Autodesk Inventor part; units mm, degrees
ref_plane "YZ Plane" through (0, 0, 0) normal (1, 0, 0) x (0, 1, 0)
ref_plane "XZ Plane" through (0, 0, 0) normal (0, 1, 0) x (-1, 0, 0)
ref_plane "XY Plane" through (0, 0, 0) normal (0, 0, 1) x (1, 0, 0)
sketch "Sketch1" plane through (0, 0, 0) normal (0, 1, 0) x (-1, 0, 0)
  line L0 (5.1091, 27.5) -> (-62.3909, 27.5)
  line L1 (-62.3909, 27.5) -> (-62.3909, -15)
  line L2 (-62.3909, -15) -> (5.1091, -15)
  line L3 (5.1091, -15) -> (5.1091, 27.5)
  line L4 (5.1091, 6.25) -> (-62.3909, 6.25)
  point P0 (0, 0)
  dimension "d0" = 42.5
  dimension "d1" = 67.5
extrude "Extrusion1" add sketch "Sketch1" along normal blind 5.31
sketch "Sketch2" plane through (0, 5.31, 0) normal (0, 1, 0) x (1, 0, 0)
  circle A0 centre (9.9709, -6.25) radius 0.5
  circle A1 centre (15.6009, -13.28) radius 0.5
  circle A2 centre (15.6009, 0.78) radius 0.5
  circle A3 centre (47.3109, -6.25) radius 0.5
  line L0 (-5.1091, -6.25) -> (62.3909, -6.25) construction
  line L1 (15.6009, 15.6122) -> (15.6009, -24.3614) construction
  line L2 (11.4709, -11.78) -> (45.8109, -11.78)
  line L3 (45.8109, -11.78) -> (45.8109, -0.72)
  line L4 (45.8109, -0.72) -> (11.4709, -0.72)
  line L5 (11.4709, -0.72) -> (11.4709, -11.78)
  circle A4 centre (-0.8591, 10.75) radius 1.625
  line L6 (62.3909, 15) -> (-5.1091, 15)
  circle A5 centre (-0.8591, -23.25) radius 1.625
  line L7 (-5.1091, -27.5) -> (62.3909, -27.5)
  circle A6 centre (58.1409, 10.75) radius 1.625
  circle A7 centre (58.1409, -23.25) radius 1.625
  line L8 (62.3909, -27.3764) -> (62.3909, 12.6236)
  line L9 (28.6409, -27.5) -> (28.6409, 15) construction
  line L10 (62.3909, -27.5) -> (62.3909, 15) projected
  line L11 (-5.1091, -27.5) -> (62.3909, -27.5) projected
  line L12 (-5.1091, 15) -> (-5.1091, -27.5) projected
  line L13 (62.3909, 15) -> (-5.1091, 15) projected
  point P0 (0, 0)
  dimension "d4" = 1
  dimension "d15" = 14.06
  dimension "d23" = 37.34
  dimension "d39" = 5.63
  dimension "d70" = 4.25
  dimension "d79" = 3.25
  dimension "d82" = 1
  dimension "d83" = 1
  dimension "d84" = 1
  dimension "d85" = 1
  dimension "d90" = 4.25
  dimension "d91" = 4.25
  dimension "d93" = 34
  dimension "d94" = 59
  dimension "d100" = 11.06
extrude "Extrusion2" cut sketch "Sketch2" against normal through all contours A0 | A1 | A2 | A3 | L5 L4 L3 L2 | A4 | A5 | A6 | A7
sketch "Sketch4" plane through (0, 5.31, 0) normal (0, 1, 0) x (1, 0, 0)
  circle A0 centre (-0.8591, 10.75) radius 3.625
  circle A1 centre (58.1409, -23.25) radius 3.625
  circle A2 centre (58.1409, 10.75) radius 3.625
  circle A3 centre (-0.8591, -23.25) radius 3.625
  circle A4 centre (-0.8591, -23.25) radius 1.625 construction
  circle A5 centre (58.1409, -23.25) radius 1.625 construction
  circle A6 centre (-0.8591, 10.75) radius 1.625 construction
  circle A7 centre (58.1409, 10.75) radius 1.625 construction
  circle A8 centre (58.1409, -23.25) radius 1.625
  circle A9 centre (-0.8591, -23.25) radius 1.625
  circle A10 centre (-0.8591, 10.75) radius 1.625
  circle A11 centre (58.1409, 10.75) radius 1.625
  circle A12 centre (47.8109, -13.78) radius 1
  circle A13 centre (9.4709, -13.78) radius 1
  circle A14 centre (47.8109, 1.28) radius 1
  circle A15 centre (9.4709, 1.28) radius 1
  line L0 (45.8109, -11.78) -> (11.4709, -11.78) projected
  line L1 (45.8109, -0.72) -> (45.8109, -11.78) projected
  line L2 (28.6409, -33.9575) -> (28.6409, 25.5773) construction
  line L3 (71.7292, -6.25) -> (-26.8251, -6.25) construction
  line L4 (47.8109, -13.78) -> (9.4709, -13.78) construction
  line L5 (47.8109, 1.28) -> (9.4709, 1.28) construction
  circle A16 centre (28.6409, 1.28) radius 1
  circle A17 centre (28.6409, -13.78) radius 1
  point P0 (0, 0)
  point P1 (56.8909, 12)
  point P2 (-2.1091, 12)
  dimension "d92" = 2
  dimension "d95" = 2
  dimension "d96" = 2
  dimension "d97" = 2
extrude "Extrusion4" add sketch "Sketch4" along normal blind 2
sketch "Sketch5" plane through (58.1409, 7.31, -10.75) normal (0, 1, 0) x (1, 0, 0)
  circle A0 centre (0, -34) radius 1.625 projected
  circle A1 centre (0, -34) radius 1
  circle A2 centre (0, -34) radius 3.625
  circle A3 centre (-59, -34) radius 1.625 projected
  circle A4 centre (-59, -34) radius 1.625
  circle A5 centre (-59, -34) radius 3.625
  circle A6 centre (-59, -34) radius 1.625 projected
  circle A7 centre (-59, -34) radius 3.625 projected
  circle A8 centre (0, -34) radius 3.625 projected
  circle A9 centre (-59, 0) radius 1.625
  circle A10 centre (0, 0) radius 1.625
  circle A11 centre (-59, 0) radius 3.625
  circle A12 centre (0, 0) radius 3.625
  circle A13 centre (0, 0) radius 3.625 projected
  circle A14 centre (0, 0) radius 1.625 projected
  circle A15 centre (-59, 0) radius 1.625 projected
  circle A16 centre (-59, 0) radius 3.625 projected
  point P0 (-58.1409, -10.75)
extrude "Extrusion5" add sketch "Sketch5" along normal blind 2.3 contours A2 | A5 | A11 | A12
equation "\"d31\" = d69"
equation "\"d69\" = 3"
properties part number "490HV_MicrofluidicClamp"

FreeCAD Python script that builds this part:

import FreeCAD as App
import Part
import Sketcher

V = App.Vector


def add_polygon(sketch, points):
    """Adds a closed chain of lines whose ends are joined by coincident constraints."""
    first, n = sketch.GeometryCount, len(points)
    for a, b in zip(points, points[1:] + points[:1]):
        sketch.addGeometry(Part.LineSegment(App.Vector(*a, 0), App.Vector(*b, 0)), False)
    for i in range(n):
        sketch.addConstraint(Sketcher.Constraint("Coincident", first + i, 2, first + (i + 1) % n, 1))

doc = App.newDocument("Part")
params = doc.addObject("Spreadsheet::Sheet", "Params")
for row, (alias, value) in enumerate([
    ("sketch1_width", "67.5 mm"),
    ("sketch1_height", "42.5 mm"),
    ("pad1_length", "5.31 mm"),
    ("sketch2_diameter", "1 mm"),
    ("sketch2_diameter2", "3.25 mm"),
    ("sketch2_height", "11.06 mm"),
    ("sketch2_width", "34.34 mm"),
    ("sketch3_diameter", "2 mm"),
    ("sketch3_diameter2", "7.25 mm"),
    ("sketch3_diameter3", "3.25 mm"),
    ("pad2_length", "2 mm"),
    ("sketch4_diameter", "7.25 mm"),
    ("sketch4_diameter2", "3.25 mm"),
    ("pad3_length", "2.3 mm"),
], start=1):
    params.set(f"A{row}", alias)
    params.set(f"B{row}", "=" + value)
    params.setAlias(f"B{row}", alias)

body = doc.addObject("PartDesign::Body", "Body")

# Sketch on XZ plane
sketch1 = body.newObject("Sketcher::SketchObject", "Sketch")
sketch1.AttachmentSupport = (doc.getObject("XZ_Plane"), [""])
sketch1.MapMode = "FlatFace"
add_polygon(sketch1, [(-5, 28), (62, 28), (62, -15), (-5, -15)])  # lines 0-3
sketch1.addConstraint(Sketcher.Constraint("Horizontal", 0))
sketch1.addConstraint(Sketcher.Constraint("Vertical", 1))
sketch1.addConstraint(Sketcher.Constraint("Horizontal", 2))
sketch1.addConstraint(Sketcher.Constraint("Vertical", 3))
sketch1.addConstraint(Sketcher.Constraint("DistanceX", 0, 1, 0, 2, 67.5))
sketch1.addConstraint(Sketcher.Constraint("DistanceY", 1, 2, 1, 1, 42.5))
sketch1.addConstraint(Sketcher.Constraint("DistanceY", 1, 2, -1, 1, 15.0))
sketch1.addConstraint(Sketcher.Constraint("DistanceX", -1, 1, 0, 2, 62.391))
sketch1.setExpression("Constraints[8]", "Params.sketch1_width")
sketch1.setExpression("Constraints[9]", "Params.sketch1_height")
pad1 = body.newObject("PartDesign::Pad", "Pad")
pad1.Profile = sketch1
pad1.setExpression("Length", "Params.pad1_length")
pad1.Reversed = True

# Sketch on XZ plane
sketch2 = body.newObject("Sketcher::SketchObject", "Sketch001")
sketch2.AttachmentSupport = (doc.getObject("XZ_Plane"), [""])
sketch2.MapMode = "FlatFace"
sketch2.AttachmentOffset = App.Placement(V(0, 0, -5.31), App.Rotation())
sketch2.addGeometry(Part.Circle(V(10, 6.2, 0), V(0, 0, 1), 0.5), False)  # 0
sketch2.addGeometry(Part.Circle(V(15.6, 13.3, 0), V(0, 0, 1), 0.5), False)  # 1
sketch2.addGeometry(Part.Circle(V(15.6, -0.8, 0), V(0, 0, 1), 0.5), False)  # 2
sketch2.addGeometry(Part.Circle(V(47.3, 6.2, 0), V(0, 0, 1), 0.5), False)  # 3
add_polygon(sketch2, [(11.5, 0.7), (11.5, 11.8), (45.8, 11.8), (45.8, 0.7)])  # lines 4-7
sketch2.addGeometry(Part.Circle(V(-0.9, -10.8, 0), V(0, 0, 1), 1.6), False)  # 8
sketch2.addGeometry(Part.Circle(V(-0.9, 23.2, 0), V(0, 0, 1), 1.6), False)  # 9
sketch2.addGeometry(Part.Circle(V(58.1, -10.8, 0), V(0, 0, 1), 1.6), False)  # 10
sketch2.addGeometry(Part.Circle(V(58.1, 23.2, 0), V(0, 0, 1), 1.6), False)  # 11
sketch2.addConstraint(Sketcher.Constraint("Vertical", 4))
sketch2.addConstraint(Sketcher.Constraint("Horizontal", 5))
sketch2.addConstraint(Sketcher.Constraint("Vertical", 6))
sketch2.addConstraint(Sketcher.Constraint("Horizontal", 7))
sketch2.addConstraint(Sketcher.Constraint("Equal", 0, 1))
sketch2.addConstraint(Sketcher.Constraint("Equal", 1, 2))
sketch2.addConstraint(Sketcher.Constraint("Equal", 2, 3))
sketch2.addConstraint(Sketcher.Constraint("Equal", 8, 9))
sketch2.addConstraint(Sketcher.Constraint("Equal", 9, 10))
sketch2.addConstraint(Sketcher.Constraint("Equal", 10, 11))
sketch2.addConstraint(Sketcher.Constraint("Horizontal", 0, 3, 3, 3))
sketch2.addConstraint(Sketcher.Constraint("Horizontal", 8, 3, 10, 3))
sketch2.addConstraint(Sketcher.Constraint("Horizontal", 9, 3, 11, 3))
sketch2.addConstraint(Sketcher.Constraint("Vertical", 1, 3, 2, 3))
sketch2.addConstraint(Sketcher.Constraint("Vertical", 8, 3, 9, 3))
sketch2.addConstraint(Sketcher.Constraint("Vertical", 10, 3, 11, 3))
sketch2.addConstraint(Sketcher.Constraint("Diameter", 0, 1.0))
sketch2.addConstraint(Sketcher.Constraint("Diameter", 8, 3.25))
sketch2.addConstraint(Sketcher.Constraint("DistanceY", 8, 3, 9, 3, 34.0))
sketch2.addConstraint(Sketcher.Constraint("DistanceX", 8, 3, 10, 3, 59.0))
sketch2.addConstraint(Sketcher.Constraint("DistanceY", 4, 1, 4, 2, 11.06))
sketch2.addConstraint(Sketcher.Constraint("DistanceX", 0, 3, 1, 3, 5.63))
sketch2.addConstraint(Sketcher.Constraint("DistanceY", 2, 3, 1, 3, 14.06))
sketch2.addConstraint(Sketcher.Constraint("DistanceX", 0, 3, 3, 3, 37.34))
sketch2.addConstraint(Sketcher.Constraint("DistanceY", 8, 3, 0, 3, 17.0))
sketch2.addConstraint(Sketcher.Constraint("DistanceX", 5, 1, 5, 2, 34.34))
sketch2.addConstraint(Sketcher.Constraint("DistanceY", 4, 2, 1, 3, 1.5))
sketch2.addConstraint(Sketcher.Constraint("DistanceX", 0, 3, 4, 2, 1.5))
sketch2.addConstraint(Sketcher.Constraint("DistanceY", -1, 1, 0, 3, 6.25))
sketch2.addConstraint(Sketcher.Constraint("DistanceY", -1, 1, 1, 3, 13.28))
sketch2.addConstraint(Sketcher.Constraint("DistanceX", 8, 3, 2, 3, 16.46))
sketch2.addConstraint(Sketcher.Constraint("DistanceX", -1, 1, 0, 3, 9.971))
sketch2.setExpression("Constraints[20]", "Params.sketch2_diameter")
sketch2.setExpression("Constraints[21]", "Params.sketch2_diameter2")
sketch2.setExpression("Constraints[24]", "Params.sketch2_height")
sketch2.setExpression("Constraints[29]", "Params.sketch2_width")
pocket1 = body.newObject("PartDesign::Pocket", "Pocket")
pocket1.Profile = sketch2
pocket1.Type = "ThroughAll"
pocket1.Reversed = True

# Sketch on XZ plane
sketch3 = body.newObject("Sketcher::SketchObject", "Sketch002")
sketch3.AttachmentSupport = (doc.getObject("XZ_Plane"), [""])
sketch3.MapMode = "FlatFace"
sketch3.AttachmentOffset = App.Placement(V(0, 0, -5.31), App.Rotation())
sketch3.addGeometry(Part.Circle(V(-0.9, -10.8, 0), V(0, 0, 1), 3.6), False)
sketch3.addGeometry(Part.Circle(V(-0.9, -10.8, 0), V(0, 0, 1), 1.6), False)
sketch3.addGeometry(Part.Circle(V(58.1, 23.2, 0), V(0, 0, 1), 3.6), False)
sketch3.addGeometry(Part.Circle(V(58.1, 23.2, 0), V(0, 0, 1), 1.6), False)
sketch3.addGeometry(Part.Circle(V(58.1, -10.8, 0), V(0, 0, 1), 3.6), False)
sketch3.addGeometry(Part.Circle(V(58.1, -10.8, 0), V(0, 0, 1), 1.6), False)
sketch3.addGeometry(Part.Circle(V(-0.9, 23.2, 0), V(0, 0, 1), 3.6), False)
sketch3.addGeometry(Part.Circle(V(-0.9, 23.2, 0), V(0, 0, 1), 1.6), False)
sketch3.addGeometry(Part.Circle(V(47.8, 13.8, 0), V(0, 0, 1), 1), False)
sketch3.addGeometry(Part.Circle(V(9.5, 13.8, 0), V(0, 0, 1), 1), False)
sketch3.addGeometry(Part.Circle(V(47.8, -1.3, 0), V(0, 0, 1), 1), False)
sketch3.addGeometry(Part.Circle(V(9.5, -1.3, 0), V(0, 0, 1), 1), False)
sketch3.addGeometry(Part.Circle(V(28.6, -1.3, 0), V(0, 0, 1), 1), False)
sketch3.addGeometry(Part.Circle(V(28.6, 13.8, 0), V(0, 0, 1), 1), False)
sketch3.addConstraint(Sketcher.Constraint("Coincident", 1, 3, 0, 3))
sketch3.addConstraint(Sketcher.Constraint("Coincident", 3, 3, 2, 3))
sketch3.addConstraint(Sketcher.Constraint("Coincident", 5, 3, 4, 3))
sketch3.addConstraint(Sketcher.Constraint("Coincident", 7, 3, 6, 3))
sketch3.addConstraint(Sketcher.Constraint("Equal", 0, 2))
sketch3.addConstraint(Sketcher.Constraint("Equal", 1, 3))
sketch3.addConstraint(Sketcher.Constraint("Equal", 2, 4))
sketch3.addConstraint(Sketcher.Constraint("Equal", 3, 5))
sketch3.addConstraint(Sketcher.Constraint("Equal", 4, 6))
sketch3.addConstraint(Sketcher.Constraint("Equal", 5, 7))
sketch3.addConstraint(Sketcher.Constraint("Equal", 8, 9))
sketch3.addConstraint(Sketcher.Constraint("Equal", 9, 10))
sketch3.addConstraint(Sketcher.Constraint("Equal", 10, 11))
sketch3.addConstraint(Sketcher.Constraint("Equal", 11, 12))
sketch3.addConstraint(Sketcher.Constraint("Equal", 12, 13))
sketch3.addConstraint(Sketcher.Constraint("Horizontal", 1, 3, 4, 3))
sketch3.addConstraint(Sketcher.Constraint("Horizontal", 3, 3, 6, 3))
sketch3.addConstraint(Sketcher.Constraint("Horizontal", 8, 3, 9, 3))
sketch3.addConstraint(Sketcher.Constraint("Horizontal", 10, 3, 11, 3))
sketch3.addConstraint(Sketcher.Constraint("Horizontal", 11, 3, 12, 3))
sketch3.addConstraint(Sketcher.Constraint("Horizontal", 9, 3, 13, 3))
sketch3.addConstraint(Sketcher.Constraint("Vertical", 3, 3, 4, 3))
sketch3.addConstraint(Sketcher.Constraint("Vertical", 1, 3, 6, 3))
sketch3.addConstraint(Sketcher.Constraint("Vertical", 8, 3, 10, 3))
sketch3.addConstraint(Sketcher.Constraint("Vertical", 9, 3, 11, 3))
sketch3.addConstraint(Sketcher.Constraint("Vertical", 12, 3, 13, 3))
sketch3.addConstraint(Sketcher.Constraint("Diameter", 8, 2.0))
sketch3.addConstraint(Sketcher.Constraint("Diameter", 0, 7.25))
sketch3.addConstraint(Sketcher.Constraint("Diameter", 1, 3.25))
sketch3.addConstraint(Sketcher.Constraint("DistanceX", 0, 3, 2, 3, 59.0))
sketch3.addConstraint(Sketcher.Constraint("DistanceY", 0, 3, 2, 3, 34.0))
sketch3.addConstraint(Sketcher.Constraint("DistanceX", 0, 3, 12, 3, 29.5))
sketch3.addConstraint(Sketcher.Constraint("DistanceY", 0, 3, -1, 1, 10.75))
sketch3.addConstraint(Sketcher.Constraint("DistanceY", -1, 1, 8, 3, 13.78))
sketch3.addConstraint(Sketcher.Constraint("DistanceY", 10, 3, -1, 1, 1.28))
sketch3.addConstraint(Sketcher.Constraint("DistanceX", 8, 3, 2, 3, 10.33))
sketch3.addConstraint(Sketcher.Constraint("DistanceX", 6, 3, 9, 3, 10.33))
sketch3.addConstraint(Sketcher.Constraint("DistanceX", 0, 3, -1, 1, 0.859))
sketch3.setExpression("Constraints[26]", "Params.sketch3_diameter")
sketch3.setExpression("Constraints[27]", "Params.sketch3_diameter2")
sketch3.setExpression("Constraints[28]", "Params.sketch3_diameter3")
pad2 = body.newObject("PartDesign::Pad", "Pad001")
pad2.Profile = sketch3
pad2.setExpression("Length", "Params.pad2_length")
pad2.Reversed = True

# Sketch on XZ plane
sketch4 = body.newObject("Sketcher::SketchObject", "Sketch003")
sketch4.AttachmentSupport = (doc.getObject("XZ_Plane"), [""])
sketch4.MapMode = "FlatFace"
sketch4.AttachmentOffset = App.Placement(V(0, 0, -7.31), App.Rotation())
sketch4.addGeometry(Part.Circle(V(58.1, 23.2, 0), V(0, 0, 1), 3.6), False)
sketch4.addGeometry(Part.Circle(V(58.1, 23.2, 0), V(0, 0, 1), 1.6), False)
sketch4.addGeometry(Part.Circle(V(-0.9, 23.2, 0), V(0, 0, 1), 3.6), False)
sketch4.addGeometry(Part.Circle(V(-0.9, 23.2, 0), V(0, 0, 1), 1.6), False)
sketch4.addGeometry(Part.Circle(V(-0.9, -10.8, 0), V(0, 0, 1), 3.6), False)
sketch4.addGeometry(Part.Circle(V(-0.9, -10.8, 0), V(0, 0, 1), 1.6), False)
sketch4.addGeometry(Part.Circle(V(58.1, -10.8, 0), V(0, 0, 1), 3.6), False)
sketch4.addGeometry(Part.Circle(V(58.1, -10.8, 0), V(0, 0, 1), 1.6), False)
sketch4.addConstraint(Sketcher.Constraint("Coincident", 1, 3, 0, 3))
sketch4.addConstraint(Sketcher.Constraint("Coincident", 3, 3, 2, 3))
sketch4.addConstraint(Sketcher.Constraint("Coincident", 5, 3, 4, 3))
sketch4.addConstraint(Sketcher.Constraint("Coincident", 7, 3, 6, 3))
sketch4.addConstraint(Sketcher.Constraint("Equal", 0, 2))
sketch4.addConstraint(Sketcher.Constraint("Equal", 1, 3))
sketch4.addConstraint(Sketcher.Constraint("Equal", 2, 4))
sketch4.addConstraint(Sketcher.Constraint("Equal", 3, 5))
sketch4.addConstraint(Sketcher.Constraint("Equal", 4, 6))
sketch4.addConstraint(Sketcher.Constraint("Equal", 5, 7))
sketch4.addConstraint(Sketcher.Constraint("Horizontal", 1, 3, 2, 3))
sketch4.addConstraint(Sketcher.Constraint("Horizontal", 5, 3, 6, 3))
sketch4.addConstraint(Sketcher.Constraint("Vertical", 3, 3, 4, 3))
sketch4.addConstraint(Sketcher.Constraint("Vertical", 1, 3, 6, 3))
sketch4.addConstraint(Sketcher.Constraint("Diameter", 0, 7.25))
sketch4.addConstraint(Sketcher.Constraint("Diameter", 1, 3.25))
sketch4.addConstraint(Sketcher.Constraint("DistanceX", 2, 3, 0, 3, 59.0))
sketch4.addConstraint(Sketcher.Constraint("DistanceY", 4, 3, 2, 3, 34.0))
sketch4.addConstraint(Sketcher.Constraint("DistanceY", -1, 1, 0, 3, 23.25))
sketch4.addConstraint(Sketcher.Constraint("DistanceX", -1, 1, 0, 3, 58.141))
sketch4.setExpression("Constraints[14]", "Params.sketch4_diameter")
sketch4.setExpression("Constraints[15]", "Params.sketch4_diameter2")
pad3 = body.newObject("PartDesign::Pad", "Pad002")
pad3.Profile = sketch4
pad3.setExpression("Length", "Params.pad3_length")
pad3.Reversed = True

doc.recompute()
